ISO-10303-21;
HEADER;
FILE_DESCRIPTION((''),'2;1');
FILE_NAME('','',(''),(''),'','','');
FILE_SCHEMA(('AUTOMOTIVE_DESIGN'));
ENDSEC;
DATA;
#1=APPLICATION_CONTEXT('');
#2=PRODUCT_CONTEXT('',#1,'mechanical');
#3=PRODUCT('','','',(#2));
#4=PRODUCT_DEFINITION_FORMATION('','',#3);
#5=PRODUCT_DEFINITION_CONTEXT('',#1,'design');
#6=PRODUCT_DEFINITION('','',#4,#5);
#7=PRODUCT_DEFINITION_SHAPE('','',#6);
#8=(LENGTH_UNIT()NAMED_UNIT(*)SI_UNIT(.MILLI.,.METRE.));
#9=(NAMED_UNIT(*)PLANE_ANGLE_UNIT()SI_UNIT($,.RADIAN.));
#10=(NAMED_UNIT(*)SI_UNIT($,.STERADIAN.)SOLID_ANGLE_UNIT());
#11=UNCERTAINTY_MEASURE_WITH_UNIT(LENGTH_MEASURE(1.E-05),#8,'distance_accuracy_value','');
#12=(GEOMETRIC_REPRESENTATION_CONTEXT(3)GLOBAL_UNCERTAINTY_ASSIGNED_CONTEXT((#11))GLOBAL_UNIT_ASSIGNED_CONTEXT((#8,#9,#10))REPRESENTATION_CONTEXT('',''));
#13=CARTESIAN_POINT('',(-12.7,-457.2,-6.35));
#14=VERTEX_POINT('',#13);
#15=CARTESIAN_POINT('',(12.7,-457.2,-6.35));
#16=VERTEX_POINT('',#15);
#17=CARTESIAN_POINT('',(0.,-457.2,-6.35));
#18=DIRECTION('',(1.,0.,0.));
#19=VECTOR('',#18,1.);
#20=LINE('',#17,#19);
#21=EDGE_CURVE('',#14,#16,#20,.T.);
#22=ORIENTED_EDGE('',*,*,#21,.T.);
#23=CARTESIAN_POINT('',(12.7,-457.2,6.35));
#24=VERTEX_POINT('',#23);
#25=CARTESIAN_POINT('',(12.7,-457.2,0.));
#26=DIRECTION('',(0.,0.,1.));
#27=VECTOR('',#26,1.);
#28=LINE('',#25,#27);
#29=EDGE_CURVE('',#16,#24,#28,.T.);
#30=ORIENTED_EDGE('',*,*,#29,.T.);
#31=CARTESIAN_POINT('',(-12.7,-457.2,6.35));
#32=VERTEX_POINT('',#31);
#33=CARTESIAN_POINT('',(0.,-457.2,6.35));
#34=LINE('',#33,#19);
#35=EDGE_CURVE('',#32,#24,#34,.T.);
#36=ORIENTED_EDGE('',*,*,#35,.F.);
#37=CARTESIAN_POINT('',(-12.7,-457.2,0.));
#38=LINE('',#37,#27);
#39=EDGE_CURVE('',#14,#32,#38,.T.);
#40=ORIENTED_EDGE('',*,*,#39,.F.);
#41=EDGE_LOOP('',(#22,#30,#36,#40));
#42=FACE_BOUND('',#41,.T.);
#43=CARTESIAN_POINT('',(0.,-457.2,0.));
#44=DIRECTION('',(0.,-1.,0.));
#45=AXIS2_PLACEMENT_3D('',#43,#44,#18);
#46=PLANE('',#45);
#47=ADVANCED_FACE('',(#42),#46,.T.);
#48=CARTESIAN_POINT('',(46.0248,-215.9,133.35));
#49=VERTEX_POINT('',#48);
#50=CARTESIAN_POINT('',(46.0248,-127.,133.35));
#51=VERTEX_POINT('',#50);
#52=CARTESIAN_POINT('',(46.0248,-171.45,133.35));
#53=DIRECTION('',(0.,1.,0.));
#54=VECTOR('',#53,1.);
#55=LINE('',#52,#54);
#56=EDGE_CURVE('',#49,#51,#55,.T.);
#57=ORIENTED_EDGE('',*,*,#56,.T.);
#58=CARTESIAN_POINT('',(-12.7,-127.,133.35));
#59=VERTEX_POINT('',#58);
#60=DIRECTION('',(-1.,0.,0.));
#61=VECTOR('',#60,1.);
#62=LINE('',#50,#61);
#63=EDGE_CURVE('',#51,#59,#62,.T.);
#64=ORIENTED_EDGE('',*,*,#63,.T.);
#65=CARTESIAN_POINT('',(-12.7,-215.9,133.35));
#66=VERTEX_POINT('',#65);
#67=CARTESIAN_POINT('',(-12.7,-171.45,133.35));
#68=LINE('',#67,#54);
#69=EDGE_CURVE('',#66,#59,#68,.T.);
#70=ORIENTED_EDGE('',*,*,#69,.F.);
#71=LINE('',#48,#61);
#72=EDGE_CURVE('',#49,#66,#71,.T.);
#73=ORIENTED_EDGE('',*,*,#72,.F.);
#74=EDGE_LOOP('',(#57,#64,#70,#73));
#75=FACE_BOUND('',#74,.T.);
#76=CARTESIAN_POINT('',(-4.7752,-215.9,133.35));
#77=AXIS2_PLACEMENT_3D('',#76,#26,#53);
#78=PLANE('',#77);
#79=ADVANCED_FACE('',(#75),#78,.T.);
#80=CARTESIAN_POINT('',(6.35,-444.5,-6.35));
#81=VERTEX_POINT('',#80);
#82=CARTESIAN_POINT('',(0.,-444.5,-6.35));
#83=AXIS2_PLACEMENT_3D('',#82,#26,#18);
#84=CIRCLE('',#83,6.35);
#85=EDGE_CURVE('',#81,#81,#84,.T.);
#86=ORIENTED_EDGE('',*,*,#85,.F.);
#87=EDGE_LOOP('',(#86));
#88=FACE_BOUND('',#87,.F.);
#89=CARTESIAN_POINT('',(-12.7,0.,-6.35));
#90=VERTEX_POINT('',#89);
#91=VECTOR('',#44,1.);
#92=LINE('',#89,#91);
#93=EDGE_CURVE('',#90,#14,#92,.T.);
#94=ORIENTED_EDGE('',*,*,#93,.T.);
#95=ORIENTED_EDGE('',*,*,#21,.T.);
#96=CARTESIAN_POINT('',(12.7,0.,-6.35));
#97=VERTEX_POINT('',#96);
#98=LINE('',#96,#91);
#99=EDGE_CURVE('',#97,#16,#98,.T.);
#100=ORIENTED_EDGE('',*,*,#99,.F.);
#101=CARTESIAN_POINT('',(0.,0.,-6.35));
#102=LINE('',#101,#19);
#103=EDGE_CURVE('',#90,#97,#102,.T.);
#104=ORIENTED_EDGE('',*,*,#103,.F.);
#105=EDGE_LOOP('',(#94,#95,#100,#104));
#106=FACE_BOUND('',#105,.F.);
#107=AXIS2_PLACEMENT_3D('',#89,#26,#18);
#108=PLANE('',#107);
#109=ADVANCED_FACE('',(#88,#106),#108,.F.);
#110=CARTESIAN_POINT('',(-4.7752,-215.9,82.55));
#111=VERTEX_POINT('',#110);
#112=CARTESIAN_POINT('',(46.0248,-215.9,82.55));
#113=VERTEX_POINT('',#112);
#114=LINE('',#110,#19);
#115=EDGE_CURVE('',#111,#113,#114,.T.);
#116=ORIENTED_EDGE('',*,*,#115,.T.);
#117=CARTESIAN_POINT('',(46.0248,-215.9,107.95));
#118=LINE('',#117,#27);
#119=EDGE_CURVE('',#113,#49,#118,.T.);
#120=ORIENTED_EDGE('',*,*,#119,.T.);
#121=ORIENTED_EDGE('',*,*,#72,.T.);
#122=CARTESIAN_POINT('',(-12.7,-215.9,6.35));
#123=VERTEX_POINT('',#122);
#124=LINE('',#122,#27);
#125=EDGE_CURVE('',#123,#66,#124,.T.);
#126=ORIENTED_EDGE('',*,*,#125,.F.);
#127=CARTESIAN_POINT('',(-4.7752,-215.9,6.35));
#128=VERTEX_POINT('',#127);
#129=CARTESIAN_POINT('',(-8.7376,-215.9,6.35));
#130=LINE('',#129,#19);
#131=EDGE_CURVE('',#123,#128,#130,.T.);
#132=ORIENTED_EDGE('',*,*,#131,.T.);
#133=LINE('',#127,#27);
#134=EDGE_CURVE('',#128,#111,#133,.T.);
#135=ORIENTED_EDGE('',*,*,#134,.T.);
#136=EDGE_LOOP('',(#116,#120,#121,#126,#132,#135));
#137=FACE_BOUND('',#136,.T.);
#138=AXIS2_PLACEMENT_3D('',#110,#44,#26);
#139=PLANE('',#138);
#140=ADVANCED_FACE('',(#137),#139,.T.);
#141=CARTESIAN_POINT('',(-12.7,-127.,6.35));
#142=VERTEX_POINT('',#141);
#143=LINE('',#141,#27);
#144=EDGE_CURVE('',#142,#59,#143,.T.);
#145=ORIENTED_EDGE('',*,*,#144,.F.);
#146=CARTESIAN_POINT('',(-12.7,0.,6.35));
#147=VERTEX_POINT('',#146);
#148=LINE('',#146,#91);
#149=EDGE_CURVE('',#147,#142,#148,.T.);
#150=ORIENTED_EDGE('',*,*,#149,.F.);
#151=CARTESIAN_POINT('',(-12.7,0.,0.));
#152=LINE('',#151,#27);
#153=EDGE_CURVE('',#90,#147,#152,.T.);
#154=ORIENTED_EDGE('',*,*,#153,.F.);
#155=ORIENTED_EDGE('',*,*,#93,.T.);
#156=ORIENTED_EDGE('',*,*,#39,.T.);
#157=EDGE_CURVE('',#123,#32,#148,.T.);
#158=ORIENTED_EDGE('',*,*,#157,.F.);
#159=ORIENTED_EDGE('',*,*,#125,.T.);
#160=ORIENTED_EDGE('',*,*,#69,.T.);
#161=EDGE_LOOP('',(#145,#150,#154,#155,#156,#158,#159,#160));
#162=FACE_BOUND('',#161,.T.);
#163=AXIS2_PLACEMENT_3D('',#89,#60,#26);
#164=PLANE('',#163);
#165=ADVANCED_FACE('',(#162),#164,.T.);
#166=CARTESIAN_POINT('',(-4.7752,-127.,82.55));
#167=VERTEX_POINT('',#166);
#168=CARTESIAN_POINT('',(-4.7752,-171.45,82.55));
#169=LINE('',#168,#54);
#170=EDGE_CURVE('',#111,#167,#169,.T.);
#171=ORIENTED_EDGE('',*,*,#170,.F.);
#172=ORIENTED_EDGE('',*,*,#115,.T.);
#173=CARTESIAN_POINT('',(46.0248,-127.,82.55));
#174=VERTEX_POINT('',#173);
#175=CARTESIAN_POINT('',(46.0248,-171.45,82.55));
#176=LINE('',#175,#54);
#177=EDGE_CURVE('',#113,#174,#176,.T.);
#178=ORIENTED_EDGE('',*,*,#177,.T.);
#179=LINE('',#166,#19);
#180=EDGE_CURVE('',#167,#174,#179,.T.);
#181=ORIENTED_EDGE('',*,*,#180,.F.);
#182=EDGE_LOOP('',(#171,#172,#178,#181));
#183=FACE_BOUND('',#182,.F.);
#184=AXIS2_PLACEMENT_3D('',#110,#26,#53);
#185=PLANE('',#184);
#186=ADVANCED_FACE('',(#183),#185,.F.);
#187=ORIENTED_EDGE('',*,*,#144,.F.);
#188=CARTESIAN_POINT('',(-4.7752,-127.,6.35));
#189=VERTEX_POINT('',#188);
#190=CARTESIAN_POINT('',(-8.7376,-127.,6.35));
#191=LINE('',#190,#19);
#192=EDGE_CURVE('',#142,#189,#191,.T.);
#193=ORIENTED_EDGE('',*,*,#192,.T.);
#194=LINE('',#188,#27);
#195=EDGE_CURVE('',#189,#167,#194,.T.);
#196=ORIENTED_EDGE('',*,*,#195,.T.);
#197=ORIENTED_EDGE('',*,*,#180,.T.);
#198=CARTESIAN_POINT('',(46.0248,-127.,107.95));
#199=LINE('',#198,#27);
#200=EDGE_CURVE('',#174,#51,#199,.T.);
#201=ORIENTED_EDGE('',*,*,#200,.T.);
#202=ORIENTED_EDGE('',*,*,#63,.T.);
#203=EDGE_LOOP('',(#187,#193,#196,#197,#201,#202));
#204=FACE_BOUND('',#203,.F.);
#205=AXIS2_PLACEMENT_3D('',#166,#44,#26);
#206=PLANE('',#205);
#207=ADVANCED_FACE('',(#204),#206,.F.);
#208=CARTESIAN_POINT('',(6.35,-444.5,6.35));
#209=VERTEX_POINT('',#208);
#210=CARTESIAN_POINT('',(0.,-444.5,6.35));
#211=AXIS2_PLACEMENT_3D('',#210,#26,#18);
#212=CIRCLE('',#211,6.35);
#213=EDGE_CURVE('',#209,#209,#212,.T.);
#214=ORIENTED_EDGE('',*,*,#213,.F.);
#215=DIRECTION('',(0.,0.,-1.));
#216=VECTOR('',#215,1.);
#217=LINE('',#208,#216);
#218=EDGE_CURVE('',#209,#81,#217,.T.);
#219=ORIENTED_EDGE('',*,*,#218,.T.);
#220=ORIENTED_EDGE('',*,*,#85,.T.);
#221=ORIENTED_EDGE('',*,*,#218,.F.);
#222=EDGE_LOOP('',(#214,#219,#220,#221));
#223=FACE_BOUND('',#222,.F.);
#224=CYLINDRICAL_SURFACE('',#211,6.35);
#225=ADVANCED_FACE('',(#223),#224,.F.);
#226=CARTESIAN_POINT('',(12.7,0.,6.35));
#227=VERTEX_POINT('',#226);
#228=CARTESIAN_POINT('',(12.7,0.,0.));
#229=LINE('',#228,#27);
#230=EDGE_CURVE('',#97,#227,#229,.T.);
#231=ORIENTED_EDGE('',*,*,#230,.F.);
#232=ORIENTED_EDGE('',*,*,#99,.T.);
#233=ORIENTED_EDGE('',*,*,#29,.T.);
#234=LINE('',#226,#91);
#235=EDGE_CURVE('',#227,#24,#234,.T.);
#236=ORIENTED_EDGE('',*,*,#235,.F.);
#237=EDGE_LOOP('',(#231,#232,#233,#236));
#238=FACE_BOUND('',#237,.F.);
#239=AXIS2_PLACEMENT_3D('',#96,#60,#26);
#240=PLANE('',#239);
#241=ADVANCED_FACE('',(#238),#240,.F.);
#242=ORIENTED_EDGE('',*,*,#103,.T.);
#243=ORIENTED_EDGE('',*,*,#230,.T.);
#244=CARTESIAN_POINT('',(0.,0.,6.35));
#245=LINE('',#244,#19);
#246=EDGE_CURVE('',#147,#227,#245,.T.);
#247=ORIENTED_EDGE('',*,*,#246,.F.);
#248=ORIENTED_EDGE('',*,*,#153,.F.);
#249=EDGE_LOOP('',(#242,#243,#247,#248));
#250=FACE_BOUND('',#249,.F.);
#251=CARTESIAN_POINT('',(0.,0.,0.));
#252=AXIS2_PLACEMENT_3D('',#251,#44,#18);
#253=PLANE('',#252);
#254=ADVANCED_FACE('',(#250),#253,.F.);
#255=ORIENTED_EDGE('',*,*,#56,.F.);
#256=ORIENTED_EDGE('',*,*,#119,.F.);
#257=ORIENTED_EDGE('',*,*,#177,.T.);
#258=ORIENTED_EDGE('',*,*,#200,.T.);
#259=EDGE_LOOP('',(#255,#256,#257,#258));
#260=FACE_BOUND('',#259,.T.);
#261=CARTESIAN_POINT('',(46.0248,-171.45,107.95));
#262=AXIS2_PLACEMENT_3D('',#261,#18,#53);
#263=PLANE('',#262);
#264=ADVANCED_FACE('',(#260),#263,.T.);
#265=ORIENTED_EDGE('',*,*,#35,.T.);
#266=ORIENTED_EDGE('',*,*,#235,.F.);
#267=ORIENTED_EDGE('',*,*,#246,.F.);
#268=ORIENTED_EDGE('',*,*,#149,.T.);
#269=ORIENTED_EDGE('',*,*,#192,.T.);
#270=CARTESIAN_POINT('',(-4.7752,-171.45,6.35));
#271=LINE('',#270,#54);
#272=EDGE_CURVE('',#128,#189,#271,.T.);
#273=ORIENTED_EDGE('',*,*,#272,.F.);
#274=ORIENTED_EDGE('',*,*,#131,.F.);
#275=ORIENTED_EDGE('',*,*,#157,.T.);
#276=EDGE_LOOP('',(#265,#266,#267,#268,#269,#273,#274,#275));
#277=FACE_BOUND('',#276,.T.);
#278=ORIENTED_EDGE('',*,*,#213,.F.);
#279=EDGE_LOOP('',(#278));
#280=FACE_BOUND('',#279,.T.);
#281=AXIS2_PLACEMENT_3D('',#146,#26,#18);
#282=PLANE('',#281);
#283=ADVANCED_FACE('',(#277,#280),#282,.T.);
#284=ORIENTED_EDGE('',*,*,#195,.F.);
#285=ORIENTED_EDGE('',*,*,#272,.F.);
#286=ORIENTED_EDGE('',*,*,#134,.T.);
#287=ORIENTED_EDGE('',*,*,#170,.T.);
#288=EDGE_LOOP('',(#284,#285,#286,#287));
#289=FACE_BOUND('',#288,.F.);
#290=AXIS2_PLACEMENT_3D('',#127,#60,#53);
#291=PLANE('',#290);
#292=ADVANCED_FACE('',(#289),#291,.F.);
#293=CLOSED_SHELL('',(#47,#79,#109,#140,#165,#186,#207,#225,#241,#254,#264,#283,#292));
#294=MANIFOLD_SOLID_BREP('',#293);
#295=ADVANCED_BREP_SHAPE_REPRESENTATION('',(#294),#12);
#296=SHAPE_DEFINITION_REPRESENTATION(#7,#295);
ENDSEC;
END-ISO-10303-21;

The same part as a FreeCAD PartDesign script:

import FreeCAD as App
import Part
import Sketcher
from FreeCAD import Vector
Q = App.Units.Quantity

doc = App.newDocument("Part")
body = doc.addObject("PartDesign::Body", "Body")

# Sketch on XZ plane
sketch1 = body.newObject("Sketcher::SketchObject", "Sketch")
sketch1.AttachmentSupport = (doc.getObject("XZ_Plane"), [""])
sketch1.MapMode = "FlatFace"
sketch1.addGeometry(Part.LineSegment(Vector(-13, 6, 0), Vector(-13, -6, 0)), False)
sketch1.addGeometry(Part.LineSegment(Vector(-13, -6, 0), Vector(13, -6, 0)), False)
sketch1.addGeometry(Part.LineSegment(Vector(13, -6, 0), Vector(13, 6, 0)), False)
sketch1.addGeometry(Part.LineSegment(Vector(13, 6, 0), Vector(-13, 6, 0)), False)
sketch1.addConstraint(Sketcher.Constraint("Coincident", 0, 2, 1, 1))
sketch1.addConstraint(Sketcher.Constraint("Coincident", 1, 2, 2, 1))
sketch1.addConstraint(Sketcher.Constraint("Coincident", 2, 2, 3, 1))
sketch1.addConstraint(Sketcher.Constraint("Coincident", 3, 2, 0, 1))
sketch1.addConstraint(Sketcher.Constraint("Vertical", 0))
sketch1.addConstraint(Sketcher.Constraint("Horizontal", 1))
sketch1.addConstraint(Sketcher.Constraint("Vertical", 2))
sketch1.addConstraint(Sketcher.Constraint("Horizontal", 3))
sketch1.addConstraint(Sketcher.Constraint("Symmetric", 0, 2, 2, 2, -1, 1))
sketch1.addConstraint(Sketcher.Constraint("DistanceX", 1, 1, 1, 2, Q("1 in")))
sketch1.addConstraint(Sketcher.Constraint("DistanceY", 0, 2, 0, 1, Q("0.5 in")))
pad1 = body.newObject("PartDesign::Pad", "Pad")
pad1.Profile = sketch1
pad1.Length = Q("18 in")

# Sketch on XY plane
sketch2 = body.newObject("Sketcher::SketchObject", "Sketch001")
sketch2.AttachmentSupport = (doc.getObject("XY_Plane"), [""])
sketch2.MapMode = "FlatFace"
sketch2.AttachmentOffset = App.Placement(Vector(0, 0, 0.25 * 25.4), App.Rotation())
sketch2.addGeometry(Part.LineSegment(Vector(-13, -127, 0), Vector(-13, -216, 0)), False)
sketch2.addGeometry(Part.LineSegment(Vector(-13, -216, 0), Vector(-5, -216, 0)), False)
sketch2.addGeometry(Part.LineSegment(Vector(-5, -216, 0), Vector(-5, -127, 0)), False)
sketch2.addGeometry(Part.LineSegment(Vector(-5, -127, 0), Vector(-13, -127, 0)), False)
sketch2.addConstraint(Sketcher.Constraint("Coincident", 0, 2, 1, 1))
sketch2.addConstraint(Sketcher.Constraint("Coincident", 1, 2, 2, 1))
sketch2.addConstraint(Sketcher.Constraint("Coincident", 2, 2, 3, 1))
sketch2.addConstraint(Sketcher.Constraint("Coincident", 3, 2, 0, 1))
sketch2.addConstraint(Sketcher.Constraint("Vertical", 0))
sketch2.addConstraint(Sketcher.Constraint("Horizontal", 1))
sketch2.addConstraint(Sketcher.Constraint("Vertical", 2))
sketch2.addConstraint(Sketcher.Constraint("Horizontal", 3))
sketch2.addConstraint(Sketcher.Constraint("DistanceY", 0, 2, 0, 1, Q("3.5 in")))
sketch2.addConstraint(Sketcher.Constraint("DistanceY", 2, 2, -1, 1, Q("5 in")))
sketch2.addConstraint(Sketcher.Constraint("DistanceX", 0, 2, -1, 1, Q("0.5 in")))
sketch2.addConstraint(Sketcher.Constraint("DistanceX", 1, 1, 1, 2, Q("0.312 in")))
pad2 = body.newObject("PartDesign::Pad", "Pad001")
pad2.Profile = sketch2
pad2.Length = Q("5 in")

# Sketch on YZ plane
sketch3 = body.newObject("Sketcher::SketchObject", "Sketch002")
sketch3.AttachmentSupport = (doc.getObject("YZ_Plane"), [""])
sketch3.MapMode = "FlatFace"
sketch3.AttachmentOffset = App.Placement(Vector(0, 0, -0.188 * 25.4), App.Rotation())
sketch3.addGeometry(Part.LineSegment(Vector(-216, 133, 0), Vector(-216, 83, 0)), False)
sketch3.addGeometry(Part.LineSegment(Vector(-216, 83, 0), Vector(-127, 83, 0)), False)
sketch3.addGeometry(Part.LineSegment(Vector(-127, 83, 0), Vector(-127, 133, 0)), False)
sketch3.addGeometry(Part.LineSegment(Vector(-127, 133, 0), Vector(-216, 133, 0)), False)
sketch3.addConstraint(Sketcher.Constraint("Coincident", 0, 2, 1, 1))
sketch3.addConstraint(Sketcher.Constraint("Coincident", 1, 2, 2, 1))
sketch3.addConstraint(Sketcher.Constraint("Coincident", 2, 2, 3, 1))
sketch3.addConstraint(Sketcher.Constraint("Coincident", 3, 2, 0, 1))
sketch3.addConstraint(Sketcher.Constraint("Vertical", 0))
sketch3.addConstraint(Sketcher.Constraint("Horizontal", 1))
sketch3.addConstraint(Sketcher.Constraint("Vertical", 2))
sketch3.addConstraint(Sketcher.Constraint("Horizontal", 3))
sketch3.addConstraint(Sketcher.Constraint("DistanceY", 0, 2, 0, 1, Q("2 in")))
sketch3.addConstraint(Sketcher.Constraint("DistanceX", 1, 1, 1, 2, Q("3.5 in")))
sketch3.addConstraint(Sketcher.Constraint("DistanceX", 1, 2, -1, 1, Q("5 in")))
sketch3.addConstraint(Sketcher.Constraint("DistanceY", -1, 1, 0, 2, Q("3.25 in")))
pad3 = body.newObject("PartDesign::Pad", "Pad002")
pad3.Profile = sketch3
pad3.Length = Q("2 in")

# Sketch on XY plane
sketch4 = body.newObject("Sketcher::SketchObject", "Sketch003")
sketch4.AttachmentSupport = (doc.getObject("XY_Plane"), [""])
sketch4.MapMode = "FlatFace"
sketch4.AttachmentOffset = App.Placement(Vector(0, 0, 0.25 * 25.4), App.Rotation())
sketch4.addGeometry(Part.Circle(Vector(0, -444, 0), Vector(0, 0, 1), 6), False)
sketch4.addConstraint(Sketcher.Constraint("PointOnObject", 0, 3, -2))
sketch4.addConstraint(Sketcher.Constraint("Diameter", 0, Q("0.5 in")))
sketch4.addConstraint(Sketcher.Constraint("DistanceY", 0, 3, -1, 1, Q("17.5 in")))
pocket1 = body.newObject("PartDesign::Pocket", "Pocket")
pocket1.Profile = sketch4
pocket1.Length = Q("1 in")

doc.recompute()
